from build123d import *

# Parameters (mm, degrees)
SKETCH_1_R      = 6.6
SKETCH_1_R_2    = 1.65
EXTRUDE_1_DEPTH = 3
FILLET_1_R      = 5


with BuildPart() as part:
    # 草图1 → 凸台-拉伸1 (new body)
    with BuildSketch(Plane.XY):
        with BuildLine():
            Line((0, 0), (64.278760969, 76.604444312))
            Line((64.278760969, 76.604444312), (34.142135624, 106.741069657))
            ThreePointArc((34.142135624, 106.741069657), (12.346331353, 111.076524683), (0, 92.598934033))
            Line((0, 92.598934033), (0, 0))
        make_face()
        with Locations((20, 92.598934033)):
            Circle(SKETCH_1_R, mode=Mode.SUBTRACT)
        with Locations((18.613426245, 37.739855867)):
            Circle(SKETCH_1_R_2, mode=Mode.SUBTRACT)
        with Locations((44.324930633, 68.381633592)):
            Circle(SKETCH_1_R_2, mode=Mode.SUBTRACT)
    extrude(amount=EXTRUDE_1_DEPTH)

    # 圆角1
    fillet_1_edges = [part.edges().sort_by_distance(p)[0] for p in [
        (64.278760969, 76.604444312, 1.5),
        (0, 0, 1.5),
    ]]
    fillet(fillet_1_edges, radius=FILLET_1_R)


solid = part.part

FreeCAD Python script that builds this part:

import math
import FreeCAD as App
import Part
import Sketcher
from FreeCAD import Vector
Q = App.Units.Quantity


def edges_at(feature, points):
    """Names of the edges that pass closest to the given points."""
    edges = feature.Shape.Edges
    near = lambda p: min(range(len(edges)), key=lambda i: edges[i].distToShape(Part.Vertex(*p))[0])
    return sorted({f"Edge{near(p) + 1}" for p in points})

doc = App.newDocument("Part")
params = doc.addObject("Spreadsheet::Sheet", "Params")
for row, (alias, value) in enumerate([
    ("sketch1_radius", "20 mm"),
    ("sketch1_diameter", "3.3 mm"),
    ("sketch1_diameter2", "13.2 mm"),
    ("sketch1_length", "100 mm"),
    ("pad1_length", "3 mm"),
    ("fillet_radius", "5 mm"),
], start=1):
    params.set(f"A{row}", alias)
    params.set(f"B{row}", "=" + value)
    params.setAlias(f"B{row}", alias)

body = doc.addObject("PartDesign::Body", "Body")

sketch1 = doc.addObject("Sketcher::SketchObject", "Sketch")
body.addObject(sketch1)
sketch1.AttachmentSupport = (doc.XY_Plane, [""])
sketch1.MapMode = "FlatFace"
sketch1.addGeometry(Part.LineSegment(Vector(0, 0, 0), Vector(64.278761, 76.604444, 0)), False)
sketch1.addGeometry(Part.LineSegment(Vector(64.278761, 76.604444, 0), Vector(34.142136, 106.74107, 0)), False)
sketch1.addGeometry(Part.ArcOfCircle(Part.Circle(Vector(20, 92.598934, 0), Vector(0, 0, 1), 20), math.radians(45), math.radians(180)), False)
sketch1.addGeometry(Part.LineSegment(Vector(0, 92.598934, 0), Vector(0, 0, 0)), False)
sketch1.addGeometry(Part.Circle(Vector(18.613426, 37.739856, 0), Vector(0, 0, 1), 1.65), False)
sketch1.addGeometry(Part.Circle(Vector(20, 92.598934, 0), Vector(0, 0, 1), 6.6), False)
sketch1.addGeometry(Part.Circle(Vector(44.324931, 68.381634, 0), Vector(0, 0, 1), 1.65), False)
sketch1.addConstraint(Sketcher.Constraint("Coincident", 0, 2, 1, 1))
sketch1.addConstraint(Sketcher.Constraint("Tangent", 1, 2, 2, 1))
sketch1.addConstraint(Sketcher.Constraint("Tangent", 2, 2, 3, 1))
sketch1.addConstraint(Sketcher.Constraint("Coincident", 3, 2, 0, 1))
sketch1.addConstraint(Sketcher.Constraint("Vertical", 3))
sketch1.addConstraint(Sketcher.Constraint("Coincident", 3, 2, -1, 1))
sketch1.addConstraint(Sketcher.Constraint("Coincident", 5, 3, 2, 3))
sketch1.addConstraint(Sketcher.Constraint("Equal", 4, 6))
sketch1.addConstraint(Sketcher.Constraint("Radius", 2, Q("20 mm")))
sketch1.addConstraint(Sketcher.Constraint("Diameter", 4, Q("3.3 mm")))
sketch1.addConstraint(Sketcher.Constraint("Diameter", 5, Q("13.2 mm")))
sketch1.addConstraint(Sketcher.Constraint("Angle", 0, Q("50 deg")))
sketch1.addConstraint(Sketcher.Constraint("Angle", 1, Q("135 deg")))
sketch1.addConstraint(Sketcher.Constraint("Distance", 0, Q("100 mm")))
sketch1.addConstraint(Sketcher.Constraint("DistanceY", 6, 3, 2, 3, Q("24.2173 mm")))
sketch1.addConstraint(Sketcher.Constraint("DistanceX", -1, 1, 6, 3, Q("44.324931 mm")))
sketch1.addConstraint(Sketcher.Constraint("DistanceY", 4, 3, 2, 3, Q("54.859078 mm")))
sketch1.addConstraint(Sketcher.Constraint("DistanceX", 4, 3, 1, 2, Q("15.528709 mm")))
sketch1.setExpression("Constraints[8]", "Params.sketch1_radius")
sketch1.setExpression("Constraints[9]", "Params.sketch1_diameter")
sketch1.setExpression("Constraints[10]", "Params.sketch1_diameter2")
sketch1.setExpression("Constraints[13]", "Params.sketch1_length")
pad1 = doc.addObject("PartDesign::Pad", "Pad")
body.addObject(pad1)
pad1.Profile = sketch1
pad1.setExpression("Length", "Params.pad1_length")
doc.recompute()

fillet = doc.addObject("PartDesign::Fillet", "Fillet")
body.addObject(fillet)
fillet.Base = (pad1, edges_at(pad1, [(64.279, 76.604, 1.5), (0, 0, 1.5)]))
fillet.setExpression("Radius", "Params.fillet_radius")

doc.recompute()
